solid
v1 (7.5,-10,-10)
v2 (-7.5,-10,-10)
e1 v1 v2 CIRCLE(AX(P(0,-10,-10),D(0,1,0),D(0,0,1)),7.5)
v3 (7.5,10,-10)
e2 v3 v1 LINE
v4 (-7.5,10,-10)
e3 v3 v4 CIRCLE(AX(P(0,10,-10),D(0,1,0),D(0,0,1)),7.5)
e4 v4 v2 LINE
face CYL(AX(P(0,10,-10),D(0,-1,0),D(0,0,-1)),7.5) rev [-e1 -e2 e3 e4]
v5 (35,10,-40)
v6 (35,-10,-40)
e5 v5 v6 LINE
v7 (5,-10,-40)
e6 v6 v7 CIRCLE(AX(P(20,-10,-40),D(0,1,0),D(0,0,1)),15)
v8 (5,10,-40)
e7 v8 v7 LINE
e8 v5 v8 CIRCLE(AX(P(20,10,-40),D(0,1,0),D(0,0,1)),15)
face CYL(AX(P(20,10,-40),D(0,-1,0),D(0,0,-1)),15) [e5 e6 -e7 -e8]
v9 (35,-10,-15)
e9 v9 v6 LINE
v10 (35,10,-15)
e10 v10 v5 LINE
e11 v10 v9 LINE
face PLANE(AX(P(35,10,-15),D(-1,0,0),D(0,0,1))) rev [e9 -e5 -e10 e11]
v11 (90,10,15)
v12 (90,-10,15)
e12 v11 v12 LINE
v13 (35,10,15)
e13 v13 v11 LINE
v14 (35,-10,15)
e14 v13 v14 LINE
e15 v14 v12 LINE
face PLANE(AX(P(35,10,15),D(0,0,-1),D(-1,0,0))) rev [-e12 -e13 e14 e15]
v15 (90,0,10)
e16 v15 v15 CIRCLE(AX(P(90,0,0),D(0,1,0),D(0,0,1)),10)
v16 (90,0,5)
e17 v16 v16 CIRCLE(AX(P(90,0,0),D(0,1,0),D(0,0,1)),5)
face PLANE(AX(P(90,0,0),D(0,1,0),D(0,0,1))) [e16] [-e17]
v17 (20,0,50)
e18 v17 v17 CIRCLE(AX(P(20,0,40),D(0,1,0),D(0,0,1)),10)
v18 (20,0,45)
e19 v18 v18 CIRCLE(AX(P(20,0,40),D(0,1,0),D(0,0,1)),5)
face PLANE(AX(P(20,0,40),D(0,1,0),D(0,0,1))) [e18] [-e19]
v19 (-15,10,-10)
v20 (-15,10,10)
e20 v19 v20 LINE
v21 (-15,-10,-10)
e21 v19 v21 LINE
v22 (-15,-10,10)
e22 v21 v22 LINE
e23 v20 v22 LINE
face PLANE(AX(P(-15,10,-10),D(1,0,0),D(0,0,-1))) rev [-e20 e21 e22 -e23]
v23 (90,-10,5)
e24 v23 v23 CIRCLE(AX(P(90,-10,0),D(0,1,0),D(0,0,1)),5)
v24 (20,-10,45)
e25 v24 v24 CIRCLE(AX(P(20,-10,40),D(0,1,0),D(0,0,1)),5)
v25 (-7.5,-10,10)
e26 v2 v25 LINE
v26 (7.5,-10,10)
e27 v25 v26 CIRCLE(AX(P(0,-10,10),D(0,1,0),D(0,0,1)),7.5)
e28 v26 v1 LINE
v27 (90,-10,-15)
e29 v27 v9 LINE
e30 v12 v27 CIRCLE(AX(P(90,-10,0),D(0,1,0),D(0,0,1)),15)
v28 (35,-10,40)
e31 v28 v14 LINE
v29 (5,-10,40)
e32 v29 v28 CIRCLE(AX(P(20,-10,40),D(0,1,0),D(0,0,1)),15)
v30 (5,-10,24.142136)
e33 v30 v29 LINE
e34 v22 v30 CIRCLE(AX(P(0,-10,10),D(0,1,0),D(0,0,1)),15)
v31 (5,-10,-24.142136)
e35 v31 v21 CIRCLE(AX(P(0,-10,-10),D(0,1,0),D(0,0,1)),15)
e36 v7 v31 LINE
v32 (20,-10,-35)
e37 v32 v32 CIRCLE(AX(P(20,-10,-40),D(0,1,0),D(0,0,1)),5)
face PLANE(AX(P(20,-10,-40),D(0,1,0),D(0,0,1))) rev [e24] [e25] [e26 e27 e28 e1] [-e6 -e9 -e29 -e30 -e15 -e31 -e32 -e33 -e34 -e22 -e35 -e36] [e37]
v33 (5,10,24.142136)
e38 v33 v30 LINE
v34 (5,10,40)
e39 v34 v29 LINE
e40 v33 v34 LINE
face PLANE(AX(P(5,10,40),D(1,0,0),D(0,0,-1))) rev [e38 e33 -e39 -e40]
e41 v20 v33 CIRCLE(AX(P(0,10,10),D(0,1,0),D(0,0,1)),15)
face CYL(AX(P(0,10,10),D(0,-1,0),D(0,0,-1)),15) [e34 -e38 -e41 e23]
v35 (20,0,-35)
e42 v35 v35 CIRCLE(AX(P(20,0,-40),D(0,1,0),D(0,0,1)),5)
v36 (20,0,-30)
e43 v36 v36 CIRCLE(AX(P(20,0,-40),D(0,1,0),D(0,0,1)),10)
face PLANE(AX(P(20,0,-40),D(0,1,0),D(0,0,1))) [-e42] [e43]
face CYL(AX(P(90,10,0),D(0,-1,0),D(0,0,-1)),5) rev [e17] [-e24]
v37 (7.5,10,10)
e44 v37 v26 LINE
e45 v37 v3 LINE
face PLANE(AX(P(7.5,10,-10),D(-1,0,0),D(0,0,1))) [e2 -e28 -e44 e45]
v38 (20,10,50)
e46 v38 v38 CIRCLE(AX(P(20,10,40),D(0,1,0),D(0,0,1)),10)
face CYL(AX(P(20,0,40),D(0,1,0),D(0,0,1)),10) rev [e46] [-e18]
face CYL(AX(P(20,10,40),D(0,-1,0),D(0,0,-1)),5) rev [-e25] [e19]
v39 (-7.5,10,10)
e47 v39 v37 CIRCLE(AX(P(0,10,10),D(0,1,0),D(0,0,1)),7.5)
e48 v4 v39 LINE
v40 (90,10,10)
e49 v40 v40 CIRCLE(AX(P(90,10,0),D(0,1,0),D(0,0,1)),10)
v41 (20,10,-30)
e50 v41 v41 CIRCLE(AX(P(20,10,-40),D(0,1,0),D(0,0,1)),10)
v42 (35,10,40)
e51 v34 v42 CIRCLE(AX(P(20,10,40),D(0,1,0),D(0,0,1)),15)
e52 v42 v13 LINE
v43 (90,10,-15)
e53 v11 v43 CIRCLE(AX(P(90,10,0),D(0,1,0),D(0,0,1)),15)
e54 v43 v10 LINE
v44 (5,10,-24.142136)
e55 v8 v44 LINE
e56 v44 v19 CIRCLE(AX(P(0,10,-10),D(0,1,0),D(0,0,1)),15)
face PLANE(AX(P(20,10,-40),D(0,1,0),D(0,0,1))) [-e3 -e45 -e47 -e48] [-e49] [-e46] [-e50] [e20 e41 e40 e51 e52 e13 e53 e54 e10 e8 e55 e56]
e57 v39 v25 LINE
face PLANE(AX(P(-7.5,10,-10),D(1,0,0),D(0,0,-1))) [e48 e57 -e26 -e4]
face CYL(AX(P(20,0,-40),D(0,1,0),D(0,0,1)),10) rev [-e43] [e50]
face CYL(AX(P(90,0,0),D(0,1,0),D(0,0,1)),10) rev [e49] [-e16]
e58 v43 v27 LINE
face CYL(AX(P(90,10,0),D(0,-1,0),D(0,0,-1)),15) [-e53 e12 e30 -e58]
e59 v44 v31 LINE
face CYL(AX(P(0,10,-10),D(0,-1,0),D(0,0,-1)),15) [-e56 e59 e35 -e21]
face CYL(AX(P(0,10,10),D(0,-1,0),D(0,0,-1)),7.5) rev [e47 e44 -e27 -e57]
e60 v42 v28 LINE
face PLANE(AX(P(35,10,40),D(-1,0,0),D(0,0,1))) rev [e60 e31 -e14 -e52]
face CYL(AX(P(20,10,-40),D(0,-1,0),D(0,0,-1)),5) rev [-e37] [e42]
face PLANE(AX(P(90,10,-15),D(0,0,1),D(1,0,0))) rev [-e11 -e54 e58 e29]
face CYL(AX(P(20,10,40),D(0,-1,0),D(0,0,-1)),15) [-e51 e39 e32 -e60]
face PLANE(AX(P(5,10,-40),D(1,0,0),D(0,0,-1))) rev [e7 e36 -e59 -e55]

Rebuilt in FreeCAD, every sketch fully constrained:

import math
import FreeCAD as App
import Part
import Sketcher
from FreeCAD import Vector
Q = App.Units.Quantity

doc = App.newDocument("Part")
body = doc.addObject("PartDesign::Body", "Body")

# Sketch on XZ plane
sketch1 = doc.addObject("Sketcher::SketchObject", "Sketch")
body.addObject(sketch1)
sketch1.AttachmentSupport = (doc.XZ_Plane, [""])
sketch1.MapMode = "FlatFace"
sketch1.addGeometry([
    Part.LineSegment(Vector(35, 40, 0), Vector(35, 15, 0)),  # 0
    Part.LineSegment(Vector(35, 15, 0), Vector(90, 15, 0)),  # 1
    Part.ArcOfCircle(Part.Circle(Vector(90, 0, 0), Vector(0, 0, 1), 15), math.radians(-90), math.radians(90)),  # 2
    Part.LineSegment(Vector(90, -15, 0), Vector(35, -15, 0)),  # 3
    Part.LineSegment(Vector(35, -15, 0), Vector(35, -40, 0)),  # 4
    Part.ArcOfCircle(Part.Circle(Vector(20, -40, 0), Vector(0, 0, 1), 15), math.radians(180), math.radians(360)),  # 5
    Part.LineSegment(Vector(5, -40, 0), Vector(5, -24, 0)),  # 6
    Part.ArcOfCircle(Part.Circle(Vector(0, -10, 0), Vector(0, 0, 1), 15), math.radians(180), math.radians(289)),  # 7
    Part.LineSegment(Vector(-15, -10, 0), Vector(-15, 10, 0)),  # 8
    Part.ArcOfCircle(Part.Circle(Vector(0, 10, 0), Vector(0, 0, 1), 15), math.radians(71), math.radians(180)),  # 9
    Part.LineSegment(Vector(5, 24, 0), Vector(5, 40, 0)),  # 10
    Part.ArcOfCircle(Part.Circle(Vector(20, 40, 0), Vector(0, 0, 1), 15), math.radians(0), math.radians(180)),  # 11
    Part.Circle(Vector(20, 40, 0), Vector(0, 0, 1), 5),  # 12
    Part.ArcOfCircle(Part.Circle(Vector(0, -10, 0), Vector(0, 0, 1), 8), math.radians(180), math.radians(360)),  # 13
    Part.LineSegment(Vector(8, -10, 0), Vector(8, 10, 0)),  # 14
    Part.ArcOfCircle(Part.Circle(Vector(0, 10, 0), Vector(0, 0, 1), 8), math.radians(0), math.radians(180)),  # 15
    Part.LineSegment(Vector(-8, 10, 0), Vector(-8, -10, 0)),  # 16
    Part.Circle(Vector(20, -40, 0), Vector(0, 0, 1), 5),  # 17
    Part.Circle(Vector(90, 0, 0), Vector(0, 0, 1), 5),  # 18
], False)
sketch1.addConstraint([
    Sketcher.Constraint("Coincident", 0, 2, 1, 1),
    Sketcher.Constraint("Tangent", 1, 2, 2, 2),
    Sketcher.Constraint("Tangent", 2, 1, 3, 1),
    Sketcher.Constraint("Coincident", 3, 2, 4, 1),
    Sketcher.Constraint("Tangent", 4, 2, 5, 2),
    Sketcher.Constraint("Tangent", 5, 1, 6, 1),
    Sketcher.Constraint("Coincident", 6, 2, 7, 2),
    Sketcher.Constraint("Tangent", 7, 1, 8, 1),
    Sketcher.Constraint("Tangent", 8, 2, 9, 2),
    Sketcher.Constraint("Coincident", 9, 1, 10, 1),
    Sketcher.Constraint("Tangent", 10, 2, 11, 2),
    Sketcher.Constraint("Tangent", 11, 1, 0, 1),
    Sketcher.Constraint("Tangent", 13, 2, 14, 1),
    Sketcher.Constraint("Tangent", 14, 2, 15, 1),
    Sketcher.Constraint("Tangent", 15, 2, 16, 1),
    Sketcher.Constraint("Tangent", 16, 2, 13, 1),
    Sketcher.Constraint("Vertical", 0),
    Sketcher.Constraint("Horizontal", 1),
    Sketcher.Constraint("Horizontal", 3),
    Sketcher.Constraint("Vertical", 4),
    Sketcher.Constraint("Vertical", 6),
    Sketcher.Constraint("Vertical", 8),
    Sketcher.Constraint("Vertical", 10),
    Sketcher.Constraint("Vertical", 14),
    Sketcher.Constraint("Vertical", 16),
    Sketcher.Constraint("Coincident", 12, 3, 11, 3),
    Sketcher.Constraint("Coincident", 13, 3, 7, 3),
    Sketcher.Constraint("Coincident", 15, 3, 9, 3),
    Sketcher.Constraint("Coincident", 17, 3, 5, 3),
    Sketcher.Constraint("Coincident", 18, 3, 2, 3),
    Sketcher.Constraint("Equal", 2, 5),
    Sketcher.Constraint("Equal", 5, 7),
    Sketcher.Constraint("Equal", 9, 11),
    Sketcher.Constraint("Equal", 12, 17),
    Sketcher.Constraint("Equal", 17, 18),
    Sketcher.Constraint("Symmetric", 7, 3, 9, 3, -1, 1),
    Sketcher.Constraint("Symmetric", 5, 3, 11, 3, -1),
    Sketcher.Constraint("PointOnObject", 2, 3, -1),
    Sketcher.Constraint("Diameter", 12, Q("10 mm")),
    Sketcher.Constraint("Radius", 2, Q("15 mm")),
    Sketcher.Constraint("Radius", 13, Q("7.5 mm")),
    Sketcher.Constraint("DistanceX", 1, 1, 1, 2, Q("55 mm")),
    Sketcher.Constraint("DistanceY", 0, 2, 0, 1, Q("25 mm")),
    Sketcher.Constraint("DistanceY", 8, 1, 8, 2, Q("20 mm")),
    Sketcher.Constraint("DistanceX", -1, 1, 2, 3, Q("90 mm")),
])
pad1 = doc.addObject("PartDesign::Pad", "Pad")
body.addObject(pad1)
pad1.Profile = sketch1
pad1.Length = 20
pad1.Midplane = True

# Sketch on XZ plane
sketch2 = doc.addObject("Sketcher::SketchObject", "Sketch001")
body.addObject(sketch2)
sketch2.AttachmentSupport = (doc.XZ_Plane, [""])
sketch2.MapMode = "FlatFace"
sketch2.AttachmentOffset = App.Placement(Vector(0, 0, -10), App.Rotation())
sketch2.addGeometry([
    Part.Circle(Vector(20, 40, 0), Vector(0, 0, 1), 10),
    Part.Circle(Vector(20, -40, 0), Vector(0, 0, 1), 10),
    Part.Circle(Vector(90, 0, 0), Vector(0, 0, 1), 10),
], False)
sketch2.addConstraint([
    Sketcher.Constraint("Equal", 0, 1),
    Sketcher.Constraint("Equal", 1, 2),
    Sketcher.Constraint("Symmetric", 0, 3, 1, 3, -1),
    Sketcher.Constraint("PointOnObject", 2, 3, -1),
    Sketcher.Constraint("Diameter", 0, Q("20 mm")),
    Sketcher.Constraint("DistanceX", -1, 1, 0, 3, Q("20 mm")),
    Sketcher.Constraint("DistanceY", -1, 1, 0, 3, Q("40 mm")),
    Sketcher.Constraint("DistanceX", -1, 1, 2, 3, Q("90 mm")),
])
pocket1 = doc.addObject("PartDesign::Pocket", "Pocket")
body.addObject(pocket1)
pocket1.Profile = sketch2
pocket1.Length = 10
pocket1.Reversed = True

doc.recompute()
